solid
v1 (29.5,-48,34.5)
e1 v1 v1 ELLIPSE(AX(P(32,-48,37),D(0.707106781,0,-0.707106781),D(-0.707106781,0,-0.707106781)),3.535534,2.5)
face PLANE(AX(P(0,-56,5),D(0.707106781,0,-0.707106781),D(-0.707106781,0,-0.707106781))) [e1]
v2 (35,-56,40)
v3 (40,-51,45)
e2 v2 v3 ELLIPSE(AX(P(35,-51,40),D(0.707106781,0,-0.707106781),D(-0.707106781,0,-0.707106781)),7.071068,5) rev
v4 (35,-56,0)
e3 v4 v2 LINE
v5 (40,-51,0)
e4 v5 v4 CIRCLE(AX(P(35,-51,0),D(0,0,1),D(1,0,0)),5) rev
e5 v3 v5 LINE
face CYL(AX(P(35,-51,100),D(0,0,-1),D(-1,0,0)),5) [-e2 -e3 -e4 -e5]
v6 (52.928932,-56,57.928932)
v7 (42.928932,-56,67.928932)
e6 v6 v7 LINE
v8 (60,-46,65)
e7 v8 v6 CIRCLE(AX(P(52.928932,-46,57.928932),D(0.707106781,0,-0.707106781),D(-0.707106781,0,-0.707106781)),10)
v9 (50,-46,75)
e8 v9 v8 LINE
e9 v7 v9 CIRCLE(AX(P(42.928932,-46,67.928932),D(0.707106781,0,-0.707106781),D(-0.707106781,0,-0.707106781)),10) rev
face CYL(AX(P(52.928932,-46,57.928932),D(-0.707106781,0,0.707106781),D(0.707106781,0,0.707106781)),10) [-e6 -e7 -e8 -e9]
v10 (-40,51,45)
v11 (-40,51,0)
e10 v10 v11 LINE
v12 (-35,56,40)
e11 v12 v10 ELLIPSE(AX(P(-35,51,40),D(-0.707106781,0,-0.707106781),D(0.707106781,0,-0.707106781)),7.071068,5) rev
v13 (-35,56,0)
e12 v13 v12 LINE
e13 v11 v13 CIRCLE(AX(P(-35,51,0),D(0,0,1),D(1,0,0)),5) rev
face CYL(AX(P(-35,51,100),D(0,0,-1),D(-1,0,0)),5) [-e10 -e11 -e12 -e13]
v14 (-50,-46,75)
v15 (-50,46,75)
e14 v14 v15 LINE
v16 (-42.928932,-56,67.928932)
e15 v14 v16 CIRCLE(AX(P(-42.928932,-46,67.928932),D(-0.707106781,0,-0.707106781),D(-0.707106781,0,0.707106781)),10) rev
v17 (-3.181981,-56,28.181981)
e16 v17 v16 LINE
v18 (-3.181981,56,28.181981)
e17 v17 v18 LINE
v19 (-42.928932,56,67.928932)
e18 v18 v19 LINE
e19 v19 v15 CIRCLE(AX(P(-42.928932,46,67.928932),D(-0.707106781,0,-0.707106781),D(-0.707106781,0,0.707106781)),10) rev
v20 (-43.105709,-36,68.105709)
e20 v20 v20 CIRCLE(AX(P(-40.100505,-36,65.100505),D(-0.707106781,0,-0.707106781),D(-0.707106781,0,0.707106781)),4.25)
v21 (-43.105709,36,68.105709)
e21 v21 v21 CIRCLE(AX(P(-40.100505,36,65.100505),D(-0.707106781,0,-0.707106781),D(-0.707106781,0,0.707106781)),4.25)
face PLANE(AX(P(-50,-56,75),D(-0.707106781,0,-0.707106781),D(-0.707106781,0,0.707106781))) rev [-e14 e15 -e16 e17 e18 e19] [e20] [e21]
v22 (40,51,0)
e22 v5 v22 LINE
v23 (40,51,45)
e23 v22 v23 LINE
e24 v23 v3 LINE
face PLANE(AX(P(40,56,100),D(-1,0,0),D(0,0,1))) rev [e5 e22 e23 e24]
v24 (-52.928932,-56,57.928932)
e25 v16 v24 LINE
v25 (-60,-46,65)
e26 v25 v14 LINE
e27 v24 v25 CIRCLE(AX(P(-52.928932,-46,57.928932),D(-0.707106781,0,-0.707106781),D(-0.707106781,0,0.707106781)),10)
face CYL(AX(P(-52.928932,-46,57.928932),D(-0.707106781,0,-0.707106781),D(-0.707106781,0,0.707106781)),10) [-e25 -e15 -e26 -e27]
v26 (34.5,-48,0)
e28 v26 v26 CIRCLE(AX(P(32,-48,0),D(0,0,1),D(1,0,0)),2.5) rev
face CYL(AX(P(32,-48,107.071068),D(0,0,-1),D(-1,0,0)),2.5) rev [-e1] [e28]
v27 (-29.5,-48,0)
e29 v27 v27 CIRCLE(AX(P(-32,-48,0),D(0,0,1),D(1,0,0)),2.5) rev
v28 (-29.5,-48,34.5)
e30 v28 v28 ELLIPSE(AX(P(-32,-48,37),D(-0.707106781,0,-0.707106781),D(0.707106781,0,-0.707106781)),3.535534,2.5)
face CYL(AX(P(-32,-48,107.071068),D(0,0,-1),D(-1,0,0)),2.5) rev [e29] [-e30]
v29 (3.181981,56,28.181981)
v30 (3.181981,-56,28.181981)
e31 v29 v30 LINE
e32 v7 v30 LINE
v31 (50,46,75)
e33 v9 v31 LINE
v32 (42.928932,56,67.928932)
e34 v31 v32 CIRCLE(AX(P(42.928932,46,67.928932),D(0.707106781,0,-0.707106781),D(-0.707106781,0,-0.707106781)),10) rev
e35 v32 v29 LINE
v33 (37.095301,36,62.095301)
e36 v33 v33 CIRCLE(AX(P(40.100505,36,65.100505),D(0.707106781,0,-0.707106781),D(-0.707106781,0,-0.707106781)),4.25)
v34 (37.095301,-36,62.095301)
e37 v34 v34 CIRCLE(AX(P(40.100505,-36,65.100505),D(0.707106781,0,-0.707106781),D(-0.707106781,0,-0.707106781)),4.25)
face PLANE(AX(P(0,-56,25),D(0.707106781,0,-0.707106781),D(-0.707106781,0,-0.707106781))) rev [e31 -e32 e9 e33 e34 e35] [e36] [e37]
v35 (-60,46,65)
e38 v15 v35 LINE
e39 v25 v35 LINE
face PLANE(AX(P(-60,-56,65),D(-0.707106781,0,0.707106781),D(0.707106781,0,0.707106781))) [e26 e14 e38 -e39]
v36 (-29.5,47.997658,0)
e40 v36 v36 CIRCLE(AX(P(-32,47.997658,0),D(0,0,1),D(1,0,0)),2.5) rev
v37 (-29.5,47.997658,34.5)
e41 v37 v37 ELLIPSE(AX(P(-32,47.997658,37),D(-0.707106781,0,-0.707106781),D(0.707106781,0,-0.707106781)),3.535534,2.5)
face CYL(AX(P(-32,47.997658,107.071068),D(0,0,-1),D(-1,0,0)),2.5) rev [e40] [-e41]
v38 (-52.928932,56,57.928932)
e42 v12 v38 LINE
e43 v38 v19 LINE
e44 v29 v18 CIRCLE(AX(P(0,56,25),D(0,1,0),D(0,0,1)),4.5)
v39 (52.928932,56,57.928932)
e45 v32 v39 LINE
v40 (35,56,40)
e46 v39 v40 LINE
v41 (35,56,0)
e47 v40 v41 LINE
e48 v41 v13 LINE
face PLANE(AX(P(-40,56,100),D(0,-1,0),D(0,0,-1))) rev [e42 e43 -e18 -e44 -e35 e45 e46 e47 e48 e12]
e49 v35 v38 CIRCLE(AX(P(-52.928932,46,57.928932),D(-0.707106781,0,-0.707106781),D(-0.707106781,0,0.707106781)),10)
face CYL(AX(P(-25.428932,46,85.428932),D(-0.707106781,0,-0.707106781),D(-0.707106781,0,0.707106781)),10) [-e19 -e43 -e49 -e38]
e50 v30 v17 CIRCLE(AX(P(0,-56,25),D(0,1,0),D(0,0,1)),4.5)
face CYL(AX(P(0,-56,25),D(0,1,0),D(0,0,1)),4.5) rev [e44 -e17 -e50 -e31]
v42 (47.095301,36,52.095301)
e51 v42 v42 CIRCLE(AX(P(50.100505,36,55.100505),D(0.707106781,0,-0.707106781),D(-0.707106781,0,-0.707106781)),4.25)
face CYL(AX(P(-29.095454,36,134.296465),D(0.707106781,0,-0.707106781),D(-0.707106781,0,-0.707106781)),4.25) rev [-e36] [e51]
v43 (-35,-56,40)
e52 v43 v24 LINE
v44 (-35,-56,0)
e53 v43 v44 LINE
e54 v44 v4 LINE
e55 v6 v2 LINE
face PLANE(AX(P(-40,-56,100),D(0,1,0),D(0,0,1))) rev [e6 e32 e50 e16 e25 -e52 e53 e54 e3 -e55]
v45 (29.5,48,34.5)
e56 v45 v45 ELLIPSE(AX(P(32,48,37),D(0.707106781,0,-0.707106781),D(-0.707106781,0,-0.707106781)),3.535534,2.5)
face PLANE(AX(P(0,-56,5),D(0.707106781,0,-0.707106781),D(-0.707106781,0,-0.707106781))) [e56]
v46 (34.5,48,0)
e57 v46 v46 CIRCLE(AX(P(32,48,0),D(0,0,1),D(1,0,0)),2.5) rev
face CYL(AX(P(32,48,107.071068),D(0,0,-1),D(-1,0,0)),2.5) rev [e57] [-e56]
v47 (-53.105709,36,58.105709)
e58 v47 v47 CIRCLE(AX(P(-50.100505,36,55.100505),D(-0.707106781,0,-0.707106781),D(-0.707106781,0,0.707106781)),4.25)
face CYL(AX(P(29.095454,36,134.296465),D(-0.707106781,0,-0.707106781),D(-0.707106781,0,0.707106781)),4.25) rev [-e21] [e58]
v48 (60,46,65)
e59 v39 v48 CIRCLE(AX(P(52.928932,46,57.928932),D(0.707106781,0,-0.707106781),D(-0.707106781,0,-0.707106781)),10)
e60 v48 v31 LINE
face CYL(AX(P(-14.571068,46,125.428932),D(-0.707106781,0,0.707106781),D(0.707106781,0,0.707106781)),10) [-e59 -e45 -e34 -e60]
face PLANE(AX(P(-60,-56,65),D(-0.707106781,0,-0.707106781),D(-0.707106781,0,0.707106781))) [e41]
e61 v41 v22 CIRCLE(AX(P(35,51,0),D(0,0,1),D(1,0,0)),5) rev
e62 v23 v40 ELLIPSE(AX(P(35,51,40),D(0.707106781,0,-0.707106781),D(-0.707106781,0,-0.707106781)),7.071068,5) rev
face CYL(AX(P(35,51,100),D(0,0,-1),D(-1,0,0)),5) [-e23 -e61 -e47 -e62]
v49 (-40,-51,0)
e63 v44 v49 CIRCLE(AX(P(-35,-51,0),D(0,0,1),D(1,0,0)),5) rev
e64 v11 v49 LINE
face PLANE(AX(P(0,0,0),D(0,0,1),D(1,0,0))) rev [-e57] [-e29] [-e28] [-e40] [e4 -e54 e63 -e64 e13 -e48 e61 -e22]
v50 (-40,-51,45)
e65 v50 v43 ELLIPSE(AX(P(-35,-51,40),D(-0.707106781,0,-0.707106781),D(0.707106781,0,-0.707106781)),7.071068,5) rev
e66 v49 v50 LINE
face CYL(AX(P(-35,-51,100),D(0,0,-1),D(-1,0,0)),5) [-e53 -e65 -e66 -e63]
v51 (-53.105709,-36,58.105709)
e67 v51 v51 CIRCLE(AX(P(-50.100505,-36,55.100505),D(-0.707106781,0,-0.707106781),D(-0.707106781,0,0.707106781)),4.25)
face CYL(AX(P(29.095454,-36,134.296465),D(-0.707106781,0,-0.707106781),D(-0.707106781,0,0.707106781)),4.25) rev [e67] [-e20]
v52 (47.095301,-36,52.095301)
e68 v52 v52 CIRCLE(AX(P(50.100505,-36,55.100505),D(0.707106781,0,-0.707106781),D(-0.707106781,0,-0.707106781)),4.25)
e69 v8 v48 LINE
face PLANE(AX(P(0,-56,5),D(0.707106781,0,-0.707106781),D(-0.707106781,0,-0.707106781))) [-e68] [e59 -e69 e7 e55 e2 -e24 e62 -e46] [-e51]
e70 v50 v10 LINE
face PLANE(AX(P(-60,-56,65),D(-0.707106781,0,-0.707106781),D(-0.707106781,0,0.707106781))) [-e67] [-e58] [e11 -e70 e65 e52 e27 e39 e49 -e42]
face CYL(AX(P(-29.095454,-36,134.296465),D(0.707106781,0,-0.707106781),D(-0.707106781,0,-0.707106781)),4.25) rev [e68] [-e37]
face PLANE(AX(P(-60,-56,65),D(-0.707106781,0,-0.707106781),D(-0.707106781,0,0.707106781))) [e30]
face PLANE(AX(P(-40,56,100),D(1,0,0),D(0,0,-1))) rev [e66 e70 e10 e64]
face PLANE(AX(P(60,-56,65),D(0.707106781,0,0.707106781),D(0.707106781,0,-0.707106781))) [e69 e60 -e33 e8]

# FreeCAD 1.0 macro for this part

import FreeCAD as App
import Part
import Sketcher
from FreeCAD import Vector


def edges_at(feature, points):
    """Names of the edges that pass closest to the given points."""
    edges = feature.Shape.Edges
    near = lambda p: min(range(len(edges)), key=lambda i: edges[i].distToShape(Part.Vertex(*p))[0])
    return sorted({f"Edge{near(p) + 1}" for p in points})

doc = App.newDocument("Part")
body = doc.addObject("PartDesign::Body", "Body")

# Sketch on XY plane
sketch1 = body.newObject("Sketcher::SketchObject", "Sketch")
sketch1.AttachmentSupport = (doc.getObject("XY_Plane"), [""])
sketch1.MapMode = "FlatFace"
sketch1.addGeometry(Part.LineSegment(Vector(-40, 56, 0), Vector(-40, -56, 0)), False)
sketch1.addGeometry(Part.LineSegment(Vector(-40, -56, 0), Vector(40, -56, 0)), False)
sketch1.addGeometry(Part.LineSegment(Vector(40, -56, 0), Vector(40, 56, 0)), False)
sketch1.addGeometry(Part.LineSegment(Vector(40, 56, 0), Vector(-40, 56, 0)), False)
sketch1.addConstraint(Sketcher.Constraint("Coincident", 0, 2, 1, 1))
sketch1.addConstraint(Sketcher.Constraint("Coincident", 1, 2, 2, 1))
sketch1.addConstraint(Sketcher.Constraint("Coincident", 2, 2, 3, 1))
sketch1.addConstraint(Sketcher.Constraint("Coincident", 3, 2, 0, 1))
sketch1.addConstraint(Sketcher.Constraint("Vertical", 0))
sketch1.addConstraint(Sketcher.Constraint("Horizontal", 1))
sketch1.addConstraint(Sketcher.Constraint("Vertical", 2))
sketch1.addConstraint(Sketcher.Constraint("Horizontal", 3))
sketch1.addConstraint(Sketcher.Constraint("Symmetric", 0, 2, 2, 2, -1, 1))
sketch1.addConstraint(Sketcher.Constraint("DistanceX", 1, 1, 1, 2, 80.0))
sketch1.addConstraint(Sketcher.Constraint("DistanceY", 0, 2, 0, 1, 112.0))
pad1 = body.newObject("PartDesign::Pad", "Pad")
pad1.Profile = sketch1
pad1.Length = 100

# Sketch on XY plane
sketch2 = body.newObject("Sketcher::SketchObject", "Sketch001")
sketch2.AttachmentSupport = (doc.getObject("XY_Plane"), [""])
sketch2.MapMode = "FlatFace"
sketch2.addGeometry(Part.Circle(Vector(-32, 48, 0), Vector(0, 0, 1), 2.5), False)
sketch2.addGeometry(Part.Circle(Vector(32, 48, 0), Vector(0, 0, 1), 2.5), False)
sketch2.addGeometry(Part.Circle(Vector(-32, -48, 0), Vector(0, 0, 1), 2.5), False)
sketch2.addGeometry(Part.Circle(Vector(32, -48, 0), Vector(0, 0, 1), 2.5), False)
sketch2.addConstraint(Sketcher.Constraint("Equal", 0, 1))
sketch2.addConstraint(Sketcher.Constraint("Equal", 1, 2))
sketch2.addConstraint(Sketcher.Constraint("Equal", 2, 3))
sketch2.addConstraint(Sketcher.Constraint("Symmetric", 1, 3, 2, 3, -1, 1))
sketch2.addConstraint(Sketcher.Constraint("Symmetric", 2, 3, 3, 3, -2))
sketch2.addConstraint(Sketcher.Constraint("Vertical", 0, 3, 2, 3))
sketch2.addConstraint(Sketcher.Constraint("Diameter", 0, 5.0))
sketch2.addConstraint(Sketcher.Constraint("DistanceX", 0, 3, -1, 1, 32.0))
sketch2.addConstraint(Sketcher.Constraint("DistanceY", -1, 1, 1, 3, 48.0))
sketch2.addConstraint(Sketcher.Constraint("DistanceY", -1, 1, 0, 3, 47.997658))
pocket1 = body.newObject("PartDesign::Pocket", "Pocket")
pocket1.Profile = sketch2
pocket1.Type = "ThroughAll"
pocket1.Midplane = True

# Sketch on XZ plane
sketch3 = body.newObject("Sketcher::SketchObject", "Sketch002")
sketch3.AttachmentSupport = (doc.getObject("XZ_Plane"), [""])
sketch3.MapMode = "FlatFace"
sketch3.AttachmentOffset = App.Placement(Vector(0, 0, -56), App.Rotation())
sketch3.addGeometry(Part.LineSegment(Vector(0, 5, 0), Vector(-60, 65, 0)), False)
sketch3.addGeometry(Part.LineSegment(Vector(-60, 65, 0), Vector(60, 65, 0)), False)
sketch3.addGeometry(Part.LineSegment(Vector(60, 65, 0), Vector(0, 5, 0)), False)
sketch3.addConstraint(Sketcher.Constraint("Coincident", 0, 2, 1, 1))
sketch3.addConstraint(Sketcher.Constraint("Coincident", 1, 2, 2, 1))
sketch3.addConstraint(Sketcher.Constraint("Coincident", 2, 2, 0, 1))
sketch3.addConstraint(Sketcher.Constraint("Horizontal", 1))
sketch3.addConstraint(Sketcher.Constraint("PointOnObject", 2, 2, -2))
sketch3.addConstraint(Sketcher.Constraint("Perpendicular", 0, 2))
sketch3.addConstraint(Sketcher.Constraint("Equal", 0, 2))
sketch3.addConstraint(Sketcher.Constraint("DistanceX", 1, 1, 1, 2, 120.0))
sketch3.addConstraint(Sketcher.Constraint("DistanceY", -1, 1, 0, 2, 65.0))
pad2 = body.newObject("PartDesign::Pad", "Pad001")
pad2.Profile = sketch3
pad2.Length = 112

# Sketch on XZ plane
sketch4 = body.newObject("Sketcher::SketchObject", "Sketch003")
sketch4.AttachmentSupport = (doc.getObject("XZ_Plane"), [""])
sketch4.MapMode = "FlatFace"
sketch4.AttachmentOffset = App.Placement(Vector(0, 0, -56), App.Rotation())
sketch4.addGeometry(Part.LineSegment(Vector(-60, 65, 0), Vector(-40, 85, 0)), False)
sketch4.addGeometry(Part.LineSegment(Vector(-40, 85, 0), Vector(-40, 65, 0)), False)
sketch4.addGeometry(Part.LineSegment(Vector(-40, 65, 0), Vector(-60, 65, 0)), False)
sketch4.addGeometry(Part.LineSegment(Vector(40, 85, 0), Vector(60, 65, 0)), False)
sketch4.addGeometry(Part.LineSegment(Vector(60, 65, 0), Vector(40, 65, 0)), False)
sketch4.addGeometry(Part.LineSegment(Vector(40, 65, 0), Vector(40, 85, 0)), False)
sketch4.addConstraint(Sketcher.Constraint("Coincident", 0, 2, 1, 1))
sketch4.addConstraint(Sketcher.Constraint("Coincident", 1, 2, 2, 1))
sketch4.addConstraint(Sketcher.Constraint("Coincident", 2, 2, 0, 1))
sketch4.addConstraint(Sketcher.Constraint("Coincident", 3, 2, 4, 1))
sketch4.addConstraint(Sketcher.Constraint("Coincident", 4, 2, 5, 1))
sketch4.addConstraint(Sketcher.Constraint("Coincident", 5, 2, 3, 1))
sketch4.addConstraint(Sketcher.Constraint("Vertical", 1))
sketch4.addConstraint(Sketcher.Constraint("Horizontal", 2))
sketch4.addConstraint(Sketcher.Constraint("Horizontal", 4))
sketch4.addConstraint(Sketcher.Constraint("Vertical", 5))
sketch4.addConstraint(Sketcher.Constraint("Symmetric", 2, 2, 3, 2, -2))
sketch4.addConstraint(Sketcher.Constraint("Symmetric", 0, 2, 5, 2, -2))
sketch4.addConstraint(Sketcher.Constraint("Perpendicular", 0, 3))
sketch4.addConstraint(Sketcher.Constraint("DistanceX", 2, 2, 2, 1, 20.0))
sketch4.addConstraint(Sketcher.Constraint("DistanceX", 0, 2, -1, 1, 40.0))
sketch4.addConstraint(Sketcher.Constraint("DistanceY", -1, 1, 0, 2, 85.0))
pad3 = body.newObject("PartDesign::Pad", "Pad002")
pad3.Profile = sketch4
pad3.Length = 112

# Sketch on XZ plane
sketch5 = body.newObject("Sketcher::SketchObject", "Sketch004")
sketch5.AttachmentSupport = (doc.getObject("XZ_Plane"), [""])
sketch5.MapMode = "FlatFace"
sketch5.AttachmentOffset = App.Placement(Vector(0, 0, -56), App.Rotation())
sketch5.addGeometry(Part.LineSegment(Vector(0, 25, 0), Vector(-50, 75, 0)), False)
sketch5.addGeometry(Part.LineSegment(Vector(-50, 75, 0), Vector(-40, 85, 0)), False)
sketch5.addGeometry(Part.LineSegment(Vector(-40, 85, 0), Vector(-40, 100, 0)), False)
sketch5.addGeometry(Part.LineSegment(Vector(-40, 100, 0), Vector(40, 100, 0)), False)
sketch5.addGeometry(Part.LineSegment(Vector(40, 100, 0), Vector(40, 85, 0)), False)
sketch5.addGeometry(Part.LineSegment(Vector(40, 85, 0), Vector(50, 75, 0)), False)
sketch5.addGeometry(Part.LineSegment(Vector(50, 75, 0), Vector(0, 25, 0)), False)
sketch5.addConstraint(Sketcher.Constraint("Coincident", 0, 2, 1, 1))
sketch5.addConstraint(Sketcher.Constraint("Coincident", 1, 2, 2, 1))
sketch5.addConstraint(Sketcher.Constraint("Coincident", 2, 2, 3, 1))
sketch5.addConstraint(Sketcher.Constraint("Coincident", 3, 2, 4, 1))
sketch5.addConstraint(Sketcher.Constraint("Coincident", 4, 2, 5, 1))
sketch5.addConstraint(Sketcher.Constraint("Coincident", 5, 2, 6, 1))
sketch5.addConstraint(Sketcher.Constraint("Coincident", 6, 2, 0, 1))
sketch5.addConstraint(Sketcher.Constraint("Vertical", 2))
sketch5.addConstraint(Sketcher.Constraint("Horizontal", 3))
sketch5.addConstraint(Sketcher.Constraint("Vertical", 4))
sketch5.addConstraint(Sketcher.Constraint("Symmetric", 1, 2, 4, 2, -2))
sketch5.addConstraint(Sketcher.Constraint("Symmetric", 0, 2, 5, 2, -2))
sketch5.addConstraint(Sketcher.Constraint("PointOnObject", 6, 2, -2))
sketch5.addConstraint(Sketcher.Constraint("Perpendicular", 0, 1))
sketch5.addConstraint(Sketcher.Constraint("Perpendicular", 1, 5))
sketch5.addConstraint(Sketcher.Constraint("DistanceX", 3, 1, 3, 2, 80.0))
sketch5.addConstraint(Sketcher.Constraint("DistanceY", 2, 1, 2, 2, 15.0))
sketch5.addConstraint(Sketcher.Constraint("DistanceX", 0, 2, -1, 1, 50.0))
sketch5.addConstraint(Sketcher.Constraint("DistanceY", -1, 1, 0, 2, 75.0))
pocket2 = body.newObject("PartDesign::Pocket", "Pocket001")
pocket2.Profile = sketch5
pocket2.Length = 112
pocket2.Reversed = True

# Sketch on an angled plane
sketch6 = body.newObject("Sketcher::SketchObject", "Sketch005")
sketch6.Placement = App.Placement(Vector(2.5, 0, 2.5), App.Rotation(Vector(-0.707106781, 0, 0.707106781), Vector(0, 0.999999999, 0), Vector(-0.707106781, 0, -0.707106781), "ZXY"))
sketch6.addGeometry(Part.Circle(Vector(74.4, 36, 0), Vector(0, 0, 1), 4.2), False)
sketch6.addGeometry(Part.Circle(Vector(74.4, -36, 0), Vector(0, 0, 1), 4.2), False)
sketch6.addConstraint(Sketcher.Constraint("Equal", 0, 1))
sketch6.addConstraint(Sketcher.Constraint("Symmetric", 0, 3, 1, 3, -1))
sketch6.addConstraint(Sketcher.Constraint("Diameter", 0, 8.5))
sketch6.addConstraint(Sketcher.Constraint("DistanceY", -1, 1, 0, 3, 36.0))
sketch6.addConstraint(Sketcher.Constraint("DistanceX", -1, 1, 0, 3, 74.388348))
pocket3 = body.newObject("PartDesign::Pocket", "Pocket002")
pocket3.Profile = sketch6
pocket3.Length = 112

# Sketch on an angled plane
sketch7 = body.newObject("Sketcher::SketchObject", "Sketch006")
sketch7.Placement = App.Placement(Vector(-2.5, 0, 2.5), App.Rotation(Vector(-0.707106781, 0, -0.707106781), Vector(0, 0.999999999, 0), Vector(0.707106781, 0, -0.707106781), "ZXY"))
sketch7.addGeometry(Part.Circle(Vector(-74.4, 36, 0), Vector(0, 0, 1), 4.2), False)
sketch7.addGeometry(Part.Circle(Vector(-74.4, -36, 0), Vector(0, 0, 1), 4.2), False)
sketch7.addConstraint(Sketcher.Constraint("Equal", 0, 1))
sketch7.addConstraint(Sketcher.Constraint("Symmetric", 0, 3, 1, 3, -1))
sketch7.addConstraint(Sketcher.Constraint("Diameter", 0, 8.5))
sketch7.addConstraint(Sketcher.Constraint("DistanceY", -1, 1, 0, 3, 36.0))
sketch7.addConstraint(Sketcher.Constraint("DistanceX", 0, 3, -1, 1, 74.388348))
pocket4 = body.newObject("PartDesign::Pocket", "Pocket003")
pocket4.Profile = sketch7
pocket4.Length = 112
doc.recompute()

fillet = body.newObject("PartDesign::Fillet", "Fillet")
fillet.Base = (pocket4, edges_at(pocket4, [
    (-55, -56, 70),
    (-55, 56, 70),
    (55, 56, 70),
    (55, -56, 70),
]))
fillet.Radius = 10
doc.recompute()

fillet2 = body.newObject("PartDesign::Fillet", "Fillet001")
fillet2.Base = (fillet, edges_at(fillet, [
    (40, -56, 22.5),
    (-40, -56, 22.5),
    (-40, 56, 22.5),
    (40, 56, 22.5),
]))
fillet2.Radius = 5

# Sketch on XZ plane
sketch8 = body.newObject("Sketcher::SketchObject", "Sketch007")
sketch8.AttachmentSupport = (doc.getObject("XZ_Plane"), [""])
sketch8.MapMode = "FlatFace"
sketch8.AttachmentOffset = App.Placement(Vector(0, 0, -56), App.Rotation())
sketch8.addGeometry(Part.Circle(Vector(0, 25, 0), Vector(0, 0, 1), 4.5), False)
sketch8.addConstraint(Sketcher.Constraint("PointOnObject", 0, 3, -2))
sketch8.addConstraint(Sketcher.Constraint("Diameter", 0, 9.0))
sketch8.addConstraint(Sketcher.Constraint("DistanceY", -1, 1, 0, 3, 25.0))
pocket5 = body.newObject("PartDesign::Pocket", "Pocket004")
pocket5.Profile = sketch8
pocket5.Length = 112
pocket5.Reversed = True

doc.recompute()
